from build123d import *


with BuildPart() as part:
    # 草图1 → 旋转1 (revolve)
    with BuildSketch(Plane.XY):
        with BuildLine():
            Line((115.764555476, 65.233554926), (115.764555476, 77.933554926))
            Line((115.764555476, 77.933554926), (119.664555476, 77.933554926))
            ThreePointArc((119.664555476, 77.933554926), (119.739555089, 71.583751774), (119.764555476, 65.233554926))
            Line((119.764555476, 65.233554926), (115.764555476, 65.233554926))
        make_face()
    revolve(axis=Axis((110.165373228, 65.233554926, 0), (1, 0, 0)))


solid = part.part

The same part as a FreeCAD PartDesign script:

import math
import FreeCAD as App
import Part
import Sketcher
from FreeCAD import Vector
Q = App.Units.Quantity

doc = App.newDocument("Part")
body = doc.addObject("PartDesign::Body", "Body")

# Sketch on XY plane
sketch1 = body.newObject("Sketcher::SketchObject", "Sketch")
sketch1.AttachmentSupport = (doc.getObject("XY_Plane"), [""])
sketch1.MapMode = "FlatFace"
sketch1.addGeometry([
    Part.LineSegment(Vector(115.8, 77.9, 0), Vector(115.8, 65.2, 0)),
    Part.LineSegment(Vector(115.8, 65.2, 0), Vector(119.8, 65.2, 0)),
    Part.ArcOfCircle(Part.Circle(Vector(-686.7, 65.2, 0), Vector(0, 0, 1), 806.5), math.radians(0), math.radians(0.9)),
    Part.LineSegment(Vector(119.7, 77.9, 0), Vector(115.8, 77.9, 0)),
], False)
sketch1.addGeometry(Part.LineSegment(Vector(-686.7, 65.2, 0), Vector(119.8, 65.2, 0)), True)  # axis
sketch1.addConstraint([
    Sketcher.Constraint("Coincident", 0, 2, 1, 1),
    Sketcher.Constraint("Coincident", 1, 2, 2, 1),
    Sketcher.Constraint("Coincident", 2, 2, 3, 1),
    Sketcher.Constraint("Coincident", 3, 2, 0, 1),
    Sketcher.Constraint("Vertical", 0),
    Sketcher.Constraint("Horizontal", 1),
    Sketcher.Constraint("Horizontal", 3),
    Sketcher.Constraint("Horizontal", 4),
    Sketcher.Constraint("Coincident", 4, 1, 2, 3),
    Sketcher.Constraint("Coincident", 4, 2, 1, 2),
    Sketcher.Constraint("DistanceX", 1, 1, 1, 2, Q("4 mm")),
    Sketcher.Constraint("DistanceX", 3, 2, 3, 1, Q("3.9 mm")),
    Sketcher.Constraint("DistanceY", 0, 2, 0, 1, Q("12.7 mm")),
    Sketcher.Constraint("DistanceX", 2, 3, -1, 1, Q("686.735429 mm")),
    Sketcher.Constraint("DistanceY", -1, 1, 2, 3, Q("65.233555 mm")),
])
revolution = body.newObject("PartDesign::Revolution", "Revolution")
revolution.Profile = sketch1
revolution.ReferenceAxis = (sketch1, ["Axis0"])
revolution.Angle = 360

doc.recompute()
